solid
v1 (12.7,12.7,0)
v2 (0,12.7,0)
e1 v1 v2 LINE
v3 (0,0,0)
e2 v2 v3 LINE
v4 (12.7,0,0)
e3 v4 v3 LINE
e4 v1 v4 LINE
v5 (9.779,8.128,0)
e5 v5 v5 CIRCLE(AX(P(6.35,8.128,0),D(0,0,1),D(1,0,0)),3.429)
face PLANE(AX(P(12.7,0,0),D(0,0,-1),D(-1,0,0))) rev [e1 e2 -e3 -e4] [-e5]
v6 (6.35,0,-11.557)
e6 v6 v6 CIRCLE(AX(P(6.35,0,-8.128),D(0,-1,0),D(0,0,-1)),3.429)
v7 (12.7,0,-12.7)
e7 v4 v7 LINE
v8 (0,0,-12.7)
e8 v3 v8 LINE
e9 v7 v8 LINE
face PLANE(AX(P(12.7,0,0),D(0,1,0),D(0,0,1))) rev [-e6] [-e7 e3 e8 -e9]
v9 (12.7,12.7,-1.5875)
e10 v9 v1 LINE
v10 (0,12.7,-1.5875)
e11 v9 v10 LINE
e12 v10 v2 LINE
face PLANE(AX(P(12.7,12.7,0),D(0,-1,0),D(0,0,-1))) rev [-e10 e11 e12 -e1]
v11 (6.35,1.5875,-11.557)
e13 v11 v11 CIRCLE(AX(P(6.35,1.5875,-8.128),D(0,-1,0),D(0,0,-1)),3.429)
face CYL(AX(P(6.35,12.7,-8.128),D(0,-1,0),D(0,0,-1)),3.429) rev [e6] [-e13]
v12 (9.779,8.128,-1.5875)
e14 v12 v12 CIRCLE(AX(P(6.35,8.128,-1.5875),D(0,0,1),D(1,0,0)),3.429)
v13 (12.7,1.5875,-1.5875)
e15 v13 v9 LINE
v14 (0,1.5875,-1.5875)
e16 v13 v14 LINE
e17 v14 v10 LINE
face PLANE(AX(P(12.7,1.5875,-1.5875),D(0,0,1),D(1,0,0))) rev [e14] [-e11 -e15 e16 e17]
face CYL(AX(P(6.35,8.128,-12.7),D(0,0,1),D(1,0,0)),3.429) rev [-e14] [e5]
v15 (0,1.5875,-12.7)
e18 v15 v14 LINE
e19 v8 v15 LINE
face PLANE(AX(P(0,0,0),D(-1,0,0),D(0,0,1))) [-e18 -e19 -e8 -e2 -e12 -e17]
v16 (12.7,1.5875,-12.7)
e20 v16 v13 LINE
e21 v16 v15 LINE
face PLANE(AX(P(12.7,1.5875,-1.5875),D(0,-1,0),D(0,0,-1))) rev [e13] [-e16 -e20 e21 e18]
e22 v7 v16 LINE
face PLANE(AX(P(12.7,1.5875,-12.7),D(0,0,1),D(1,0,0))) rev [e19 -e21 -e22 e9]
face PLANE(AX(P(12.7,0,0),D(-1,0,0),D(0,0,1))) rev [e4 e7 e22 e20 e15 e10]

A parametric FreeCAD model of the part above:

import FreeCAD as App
import Part
import Sketcher
Q = App.Units.Quantity

doc = App.newDocument("Part")
body = doc.addObject("PartDesign::Body", "Body")

# Sketch on YZ plane
sketch1 = body.newObject("Sketcher::SketchObject", "Sketch")
sketch1.AttachmentSupport = (doc.getObject("YZ_Plane"), [""])
sketch1.MapMode = "FlatFace"
sketch1.addGeometry(Part.LineSegment(App.Vector(12.7, 0, 0), App.Vector(0, 0, 0)), False)
sketch1.addGeometry(Part.LineSegment(App.Vector(0, 0, 0), App.Vector(0, -12.7, 0)), False)
sketch1.addGeometry(Part.LineSegment(App.Vector(0, -12.7, 0), App.Vector(1.6, -12.7, 0)), False)
sketch1.addGeometry(Part.LineSegment(App.Vector(1.6, -12.7, 0), App.Vector(1.6, -1.6, 0)), False)
sketch1.addGeometry(Part.LineSegment(App.Vector(1.6, -1.6, 0), App.Vector(12.7, -1.6, 0)), False)
sketch1.addGeometry(Part.LineSegment(App.Vector(12.7, -1.6, 0), App.Vector(12.7, 0, 0)), False)
sketch1.addConstraint(Sketcher.Constraint("Coincident", 0, 2, 1, 1))
sketch1.addConstraint(Sketcher.Constraint("Coincident", 1, 2, 2, 1))
sketch1.addConstraint(Sketcher.Constraint("Coincident", 2, 2, 3, 1))
sketch1.addConstraint(Sketcher.Constraint("Coincident", 3, 2, 4, 1))
sketch1.addConstraint(Sketcher.Constraint("Coincident", 4, 2, 5, 1))
sketch1.addConstraint(Sketcher.Constraint("Coincident", 5, 2, 0, 1))
sketch1.addConstraint(Sketcher.Constraint("Horizontal", 0))
sketch1.addConstraint(Sketcher.Constraint("Vertical", 1))
sketch1.addConstraint(Sketcher.Constraint("Horizontal", 2))
sketch1.addConstraint(Sketcher.Constraint("Vertical", 3))
sketch1.addConstraint(Sketcher.Constraint("Horizontal", 4))
sketch1.addConstraint(Sketcher.Constraint("Vertical", 5))
sketch1.addConstraint(Sketcher.Constraint("Coincident", 0, 2, -1, 1))
sketch1.addConstraint(Sketcher.Constraint("Equal", 0, 1))
sketch1.addConstraint(Sketcher.Constraint("Equal", 4, 3))
sketch1.addConstraint(Sketcher.Constraint("DistanceX", 0, 2, 0, 1, Q("0.5 in")))
sketch1.addConstraint(Sketcher.Constraint("DistanceX", 2, 1, 2, 2, Q("0.0625 in")))
pad1 = body.newObject("PartDesign::Pad", "Pad")
pad1.Profile = sketch1
pad1.Length = Q("0.5 in")

# Sketch on XY plane
sketch2 = body.newObject("Sketcher::SketchObject", "Sketch001")
sketch2.AttachmentSupport = (doc.getObject("XY_Plane"), [""])
sketch2.MapMode = "FlatFace"
sketch2.addGeometry(Part.Circle(App.Vector(6.3, 8.1, 0), App.Vector(0, 0, 1), 3.4), False)
sketch2.addConstraint(Sketcher.Constraint("Diameter", 0, Q("0.27 in")))
sketch2.addConstraint(Sketcher.Constraint("DistanceX", -1, 1, 0, 3, Q("0.25 in")))
sketch2.addConstraint(Sketcher.Constraint("DistanceY", -1, 1, 0, 3, Q("0.32 in")))
pocket1 = body.newObject("PartDesign::Pocket", "Pocket")
pocket1.Profile = sketch2
pocket1.Type = "ThroughAll"

# Sketch on XZ plane
sketch3 = body.newObject("Sketcher::SketchObject", "Sketch002")
sketch3.AttachmentSupport = (doc.getObject("XZ_Plane"), [""])
sketch3.MapMode = "FlatFace"
sketch3.addGeometry(Part.Circle(App.Vector(6.3, -8.1, 0), App.Vector(0, 0, 1), 3.4), False)
sketch3.addConstraint(Sketcher.Constraint("Diameter", 0, Q("0.27 in")))
sketch3.addConstraint(Sketcher.Constraint("DistanceX", -1, 1, 0, 3, Q("0.25 in")))
sketch3.addConstraint(Sketcher.Constraint("DistanceY", 0, 3, -1, 1, Q("0.32 in")))
pocket2 = body.newObject("PartDesign::Pocket", "Pocket001")
pocket2.Profile = sketch3
pocket2.Type = "ThroughAll"

doc.recompute()
